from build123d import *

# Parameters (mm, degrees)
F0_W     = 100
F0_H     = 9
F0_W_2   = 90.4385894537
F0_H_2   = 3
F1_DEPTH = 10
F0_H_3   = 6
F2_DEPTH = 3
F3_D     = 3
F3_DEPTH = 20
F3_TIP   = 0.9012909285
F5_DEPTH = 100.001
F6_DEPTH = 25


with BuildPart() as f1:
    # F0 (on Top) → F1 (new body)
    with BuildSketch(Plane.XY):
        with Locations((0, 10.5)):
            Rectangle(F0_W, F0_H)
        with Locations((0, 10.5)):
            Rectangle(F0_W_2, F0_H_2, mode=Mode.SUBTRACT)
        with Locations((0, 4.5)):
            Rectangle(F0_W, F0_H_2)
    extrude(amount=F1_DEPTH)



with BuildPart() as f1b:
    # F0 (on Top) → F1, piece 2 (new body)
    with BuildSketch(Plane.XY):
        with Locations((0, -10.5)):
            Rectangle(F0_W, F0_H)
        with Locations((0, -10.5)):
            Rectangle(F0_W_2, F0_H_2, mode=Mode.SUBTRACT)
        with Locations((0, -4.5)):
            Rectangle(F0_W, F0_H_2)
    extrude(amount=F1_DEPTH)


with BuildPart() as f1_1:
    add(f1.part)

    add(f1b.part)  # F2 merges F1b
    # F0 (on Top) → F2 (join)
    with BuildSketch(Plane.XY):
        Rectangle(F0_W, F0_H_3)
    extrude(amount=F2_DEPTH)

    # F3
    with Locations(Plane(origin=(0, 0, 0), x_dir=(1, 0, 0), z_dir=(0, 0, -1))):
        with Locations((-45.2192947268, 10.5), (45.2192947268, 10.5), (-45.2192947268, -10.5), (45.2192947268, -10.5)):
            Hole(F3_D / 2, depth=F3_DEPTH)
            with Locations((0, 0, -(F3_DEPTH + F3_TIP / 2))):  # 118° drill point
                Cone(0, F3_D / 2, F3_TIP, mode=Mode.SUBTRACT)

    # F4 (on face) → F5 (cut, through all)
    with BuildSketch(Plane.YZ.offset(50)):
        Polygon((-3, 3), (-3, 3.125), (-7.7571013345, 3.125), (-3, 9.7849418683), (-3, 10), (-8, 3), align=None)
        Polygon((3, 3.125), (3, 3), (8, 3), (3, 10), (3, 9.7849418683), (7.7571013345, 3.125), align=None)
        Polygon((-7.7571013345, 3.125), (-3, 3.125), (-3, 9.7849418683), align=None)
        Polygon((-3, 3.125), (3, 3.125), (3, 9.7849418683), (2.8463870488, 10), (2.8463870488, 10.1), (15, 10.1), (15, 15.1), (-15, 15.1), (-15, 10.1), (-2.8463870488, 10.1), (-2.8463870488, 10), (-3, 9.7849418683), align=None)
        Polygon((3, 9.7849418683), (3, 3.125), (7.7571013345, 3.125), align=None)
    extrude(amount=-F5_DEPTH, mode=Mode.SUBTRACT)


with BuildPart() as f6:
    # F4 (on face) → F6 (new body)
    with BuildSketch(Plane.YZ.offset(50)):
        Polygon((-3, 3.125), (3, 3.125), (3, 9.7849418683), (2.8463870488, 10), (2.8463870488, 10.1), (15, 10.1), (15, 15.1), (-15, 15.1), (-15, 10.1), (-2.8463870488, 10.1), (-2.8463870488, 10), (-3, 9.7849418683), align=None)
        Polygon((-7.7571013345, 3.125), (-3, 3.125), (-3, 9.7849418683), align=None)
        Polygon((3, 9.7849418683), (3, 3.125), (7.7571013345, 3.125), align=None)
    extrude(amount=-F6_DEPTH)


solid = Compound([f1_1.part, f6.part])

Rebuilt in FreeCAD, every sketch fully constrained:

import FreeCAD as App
import Part
import Sketcher
Q = App.Units.Quantity

doc = App.newDocument("Part")
body = doc.addObject("PartDesign::Body", "Body")

# Sketch on XY plane
sketch1 = body.newObject("Sketcher::SketchObject", "Sketch")
sketch1.AttachmentSupport = (doc.getObject("XY_Plane"), [""])
sketch1.MapMode = "FlatFace"
sketch1.addGeometry([
    Part.LineSegment(App.Vector(-50, 15, 0), App.Vector(-50, 3, 0)),  # 0
    Part.LineSegment(App.Vector(-50, 3, 0), App.Vector(50, 3, 0)),  # 1
    Part.LineSegment(App.Vector(50, 3, 0), App.Vector(50, 15, 0)),  # 2
    Part.LineSegment(App.Vector(50, 15, 0), App.Vector(-50, 15, 0)),  # 3
    Part.LineSegment(App.Vector(45.2, 9, 0), App.Vector(-45.2, 9, 0)),  # 4
    Part.LineSegment(App.Vector(-45.2, 9, 0), App.Vector(-45.2, 12, 0)),  # 5
    Part.LineSegment(App.Vector(-45.2, 12, 0), App.Vector(45.2, 12, 0)),  # 6
    Part.LineSegment(App.Vector(45.2, 12, 0), App.Vector(45.2, 9, 0)),  # 7
], False)
sketch1.addConstraint([
    Sketcher.Constraint("Coincident", 0, 2, 1, 1),
    Sketcher.Constraint("Coincident", 1, 2, 2, 1),
    Sketcher.Constraint("Coincident", 2, 2, 3, 1),
    Sketcher.Constraint("Coincident", 3, 2, 0, 1),
    Sketcher.Constraint("Coincident", 4, 2, 5, 1),
    Sketcher.Constraint("Coincident", 5, 2, 6, 1),
    Sketcher.Constraint("Coincident", 6, 2, 7, 1),
    Sketcher.Constraint("Coincident", 7, 2, 4, 1),
    Sketcher.Constraint("Vertical", 0),
    Sketcher.Constraint("Horizontal", 1),
    Sketcher.Constraint("Vertical", 2),
    Sketcher.Constraint("Horizontal", 3),
    Sketcher.Constraint("Horizontal", 4),
    Sketcher.Constraint("Vertical", 5),
    Sketcher.Constraint("Horizontal", 6),
    Sketcher.Constraint("Vertical", 7),
    Sketcher.Constraint("DistanceX", 1, 1, 1, 2, Q("100 mm")),
    Sketcher.Constraint("DistanceY", 0, 2, 0, 1, Q("12 mm")),
    Sketcher.Constraint("DistanceY", 5, 1, 5, 2, Q("3 mm")),
    Sketcher.Constraint("DistanceX", 0, 2, -1, 1, Q("50 mm")),
    Sketcher.Constraint("DistanceY", -1, 1, 0, 2, Q("3 mm")),
    Sketcher.Constraint("DistanceY", -1, 1, 4, 2, Q("9 mm")),
    Sketcher.Constraint("DistanceX", 4, 2, 4, 1, Q("90.438589 mm")),
    Sketcher.Constraint("DistanceX", 4, 2, -1, 1, Q("45.219295 mm")),
])
pad1 = body.newObject("PartDesign::Pad", "Pad")
pad1.Profile = sketch1
pad1.Length = 10
body2 = doc.addObject("PartDesign::Body", "Body001")

# Sketch on XY plane
sketch2 = body2.newObject("Sketcher::SketchObject", "Sketch001")
sketch2.AttachmentSupport = (doc.getObject("XY_Plane001"), [""])
sketch2.MapMode = "FlatFace"
sketch2.addGeometry([
    Part.LineSegment(App.Vector(-50, -15, 0), App.Vector(50, -15, 0)),  # 0
    Part.LineSegment(App.Vector(50, -15, 0), App.Vector(50, -3, 0)),  # 1
    Part.LineSegment(App.Vector(50, -3, 0), App.Vector(-50, -3, 0)),  # 2
    Part.LineSegment(App.Vector(-50, -3, 0), App.Vector(-50, -15, 0)),  # 3
    Part.LineSegment(App.Vector(45.2, -12, 0), App.Vector(-45.2, -12, 0)),  # 4
    Part.LineSegment(App.Vector(-45.2, -12, 0), App.Vector(-45.2, -9, 0)),  # 5
    Part.LineSegment(App.Vector(-45.2, -9, 0), App.Vector(45.2, -9, 0)),  # 6
    Part.LineSegment(App.Vector(45.2, -9, 0), App.Vector(45.2, -12, 0)),  # 7
], False)
sketch2.addConstraint([
    Sketcher.Constraint("Coincident", 0, 2, 1, 1),
    Sketcher.Constraint("Coincident", 1, 2, 2, 1),
    Sketcher.Constraint("Coincident", 2, 2, 3, 1),
    Sketcher.Constraint("Coincident", 3, 2, 0, 1),
    Sketcher.Constraint("Coincident", 4, 2, 5, 1),
    Sketcher.Constraint("Coincident", 5, 2, 6, 1),
    Sketcher.Constraint("Coincident", 6, 2, 7, 1),
    Sketcher.Constraint("Coincident", 7, 2, 4, 1),
    Sketcher.Constraint("Horizontal", 0),
    Sketcher.Constraint("Vertical", 1),
    Sketcher.Constraint("Horizontal", 2),
    Sketcher.Constraint("Vertical", 3),
    Sketcher.Constraint("Horizontal", 4),
    Sketcher.Constraint("Vertical", 5),
    Sketcher.Constraint("Horizontal", 6),
    Sketcher.Constraint("Vertical", 7),
    Sketcher.Constraint("DistanceX", 0, 1, 0, 2, Q("100 mm")),
    Sketcher.Constraint("DistanceY", 1, 1, 1, 2, Q("12 mm")),
    Sketcher.Constraint("DistanceY", 5, 1, 5, 2, Q("3 mm")),
    Sketcher.Constraint("DistanceX", -1, 1, 0, 2, Q("50 mm")),
    Sketcher.Constraint("DistanceY", 0, 2, -1, 1, Q("15 mm")),
    Sketcher.Constraint("DistanceY", 4, 2, -1, 1, Q("12 mm")),
    Sketcher.Constraint("DistanceX", 4, 2, 4, 1, Q("90.438589 mm")),
    Sketcher.Constraint("DistanceX", 4, 2, -1, 1, Q("45.219295 mm")),
])
pad2 = body2.newObject("PartDesign::Pad", "Pad001")
pad2.Profile = sketch2
pad2.Length = 10
body.AllowCompound = True
doc.recompute()

boolean = body.newObject("PartDesign::Boolean", "Boolean")
boolean.Type = "Fuse"
boolean.addObjects([body2])

# Sketch on XY plane
sketch3 = body.newObject("Sketcher::SketchObject", "Sketch002")
sketch3.AttachmentSupport = (doc.getObject("XY_Plane"), [""])
sketch3.MapMode = "FlatFace"
sketch3.addGeometry([
    Part.LineSegment(App.Vector(-50, 3, 0), App.Vector(-50, -3, 0)),
    Part.LineSegment(App.Vector(-50, -3, 0), App.Vector(50, -3, 0)),
    Part.LineSegment(App.Vector(50, -3, 0), App.Vector(50, 3, 0)),
    Part.LineSegment(App.Vector(50, 3, 0), App.Vector(-50, 3, 0)),
], False)
sketch3.addConstraint([
    Sketcher.Constraint("Coincident", 0, 2, 1, 1),
    Sketcher.Constraint("Coincident", 1, 2, 2, 1),
    Sketcher.Constraint("Coincident", 2, 2, 3, 1),
    Sketcher.Constraint("Coincident", 3, 2, 0, 1),
    Sketcher.Constraint("Vertical", 0),
    Sketcher.Constraint("Horizontal", 1),
    Sketcher.Constraint("Vertical", 2),
    Sketcher.Constraint("Horizontal", 3),
    Sketcher.Constraint("Symmetric", 0, 2, 2, 2, -1, 1),
    Sketcher.Constraint("DistanceX", 1, 1, 1, 2, Q("100 mm")),
    Sketcher.Constraint("DistanceY", 0, 2, 0, 1, Q("6 mm")),
])
pad3 = body.newObject("PartDesign::Pad", "Pad002")
pad3.Profile = sketch3
pad3.Length = 3

# Sketch on XY plane
sketch4 = body.newObject("Sketcher::SketchObject", "Sketch003")
sketch4.AttachmentSupport = (doc.getObject("XY_Plane"), [""])
sketch4.MapMode = "FlatFace"
sketch4.addGeometry([
    Part.Circle(App.Vector(-45.2, -10.5, 0), App.Vector(0, 0, 1), 1.5),
    Part.Circle(App.Vector(45.2, -10.5, 0), App.Vector(0, 0, 1), 1.5),
    Part.Circle(App.Vector(-45.2, 10.5, 0), App.Vector(0, 0, 1), 1.5),
    Part.Circle(App.Vector(45.2, 10.5, 0), App.Vector(0, 0, 1), 1.5),
], False)
sketch4.addConstraint([
    Sketcher.Constraint("Equal", 0, 1),
    Sketcher.Constraint("Equal", 1, 2),
    Sketcher.Constraint("Equal", 2, 3),
    Sketcher.Constraint("Symmetric", 1, 3, 2, 3, -1, 1),
    Sketcher.Constraint("Symmetric", 0, 3, 3, 3, -1, 1),
    Sketcher.Constraint("Symmetric", 0, 3, 1, 3, -2),
    Sketcher.Constraint("Diameter", 0, Q("3 mm")),
    Sketcher.Constraint("DistanceY", 0, 3, 2, 3, Q("21 mm")),
    Sketcher.Constraint("DistanceX", 0, 3, 1, 3, Q("90.438589 mm")),
])
doc.recompute()
hole = body.newObject("PartDesign::Hole", "Hole")
hole.Profile = sketch4
hole.ThreadType = "None"
hole.Diameter = 3
hole.DepthType = "Dimension"
hole.Depth = 20
hole.DrillPoint = "Angled"
hole.DrillPointAngle = 118
hole.Reversed = True

# Sketch on YZ plane
sketch5 = body.newObject("Sketcher::SketchObject", "Sketch004")
sketch5.AttachmentSupport = (doc.getObject("YZ_Plane"), [""])
sketch5.MapMode = "FlatFace"
sketch5.AttachmentOffset = App.Placement(App.Vector(0, 0, 50), App.Rotation())
sketch5.addGeometry([
    Part.LineSegment(App.Vector(-3, 3, 0), App.Vector(-3, 3.12, 0)),  # 0
    Part.LineSegment(App.Vector(-3, 3.12, 0), App.Vector(3, 3.12, 0)),  # 1
    Part.LineSegment(App.Vector(3, 3.12, 0), App.Vector(3, 3, 0)),  # 2
    Part.LineSegment(App.Vector(3, 3, 0), App.Vector(8, 3, 0)),  # 3
    Part.LineSegment(App.Vector(8, 3, 0), App.Vector(3, 10, 0)),  # 4
    Part.LineSegment(App.Vector(3, 10, 0), App.Vector(3, 9.78, 0)),  # 5
    Part.LineSegment(App.Vector(3, 9.78, 0), App.Vector(2.85, 10, 0)),  # 6
    Part.LineSegment(App.Vector(2.85, 10, 0), App.Vector(2.85, 10.1, 0)),  # 7
    Part.LineSegment(App.Vector(2.85, 10.1, 0), App.Vector(15, 10.1, 0)),  # 8
    Part.LineSegment(App.Vector(15, 10.1, 0), App.Vector(15, 15.1, 0)),  # 9
    Part.LineSegment(App.Vector(15, 15.1, 0), App.Vector(-15, 15.1, 0)),  # 10
    Part.LineSegment(App.Vector(-15, 15.1, 0), App.Vector(-15, 10.1, 0)),  # 11
    Part.LineSegment(App.Vector(-15, 10.1, 0), App.Vector(-2.85, 10.1, 0)),  # 12
    Part.LineSegment(App.Vector(-2.85, 10.1, 0), App.Vector(-2.85, 10, 0)),  # 13
    Part.LineSegment(App.Vector(-2.85, 10, 0), App.Vector(-3, 9.78, 0)),  # 14
    Part.LineSegment(App.Vector(-3, 9.78, 0), App.Vector(-3, 10, 0)),  # 15
    Part.LineSegment(App.Vector(-3, 10, 0), App.Vector(-8, 3, 0)),  # 16
    Part.LineSegment(App.Vector(-8, 3, 0), App.Vector(-3, 3, 0)),  # 17
], False)
sketch5.addConstraint([
    Sketcher.Constraint("Coincident", 0, 2, 1, 1),
    Sketcher.Constraint("Coincident", 1, 2, 2, 1),
    Sketcher.Constraint("Coincident", 2, 2, 3, 1),
    Sketcher.Constraint("Coincident", 3, 2, 4, 1),
    Sketcher.Constraint("Coincident", 4, 2, 5, 1),
    Sketcher.Constraint("Coincident", 5, 2, 6, 1),
    Sketcher.Constraint("Coincident", 6, 2, 7, 1),
    Sketcher.Constraint("Coincident", 7, 2, 8, 1),
    Sketcher.Constraint("Coincident", 8, 2, 9, 1),
    Sketcher.Constraint("Coincident", 9, 2, 10, 1),
    Sketcher.Constraint("Coincident", 10, 2, 11, 1),
    Sketcher.Constraint("Coincident", 11, 2, 12, 1),
    Sketcher.Constraint("Coincident", 12, 2, 13, 1),
    Sketcher.Constraint("Coincident", 13, 2, 14, 1),
    Sketcher.Constraint("Coincident", 14, 2, 15, 1),
    Sketcher.Constraint("Coincident", 15, 2, 16, 1),
    Sketcher.Constraint("Coincident", 16, 2, 17, 1),
    Sketcher.Constraint("Coincident", 17, 2, 0, 1),
    Sketcher.Constraint("Vertical", 0),
    Sketcher.Constraint("Horizontal", 1),
    Sketcher.Constraint("Vertical", 2),
    Sketcher.Constraint("Horizontal", 3),
    Sketcher.Constraint("Vertical", 5),
    Sketcher.Constraint("Vertical", 7),
    Sketcher.Constraint("Horizontal", 8),
    Sketcher.Constraint("Vertical", 9),
    Sketcher.Constraint("Horizontal", 10),
    Sketcher.Constraint("Vertical", 11),
    Sketcher.Constraint("Horizontal", 12),
    Sketcher.Constraint("Vertical", 13),
    Sketcher.Constraint("Vertical", 15),
    Sketcher.Constraint("Horizontal", 17),
    Sketcher.Constraint("Symmetric", 8, 2, 11, 2, -2),
    Sketcher.Constraint("Symmetric", 6, 2, 13, 2, -2),
    Sketcher.Constraint("Symmetric", 5, 2, 14, 2, -2),
    Sketcher.Constraint("Symmetric", 3, 2, 16, 2, -2),
    Sketcher.Constraint("Parallel", 4, 6),
    Sketcher.Constraint("Parallel", 14, 16),
    Sketcher.Constraint("Horizontal", 4, 2, 6, 2),
    Sketcher.Constraint("Vertical", 2, 2, 4, 2),
    Sketcher.Constraint("Vertical", 0, 2, 14, 2),
    Sketcher.Constraint("Equal", 17, 9),
    Sketcher.Constraint("DistanceX", 1, 1, 1, 2, Q("6 mm")),
    Sketcher.Constraint("DistanceX", 3, 1, 3, 2, Q("5 mm")),
    Sketcher.Constraint("DistanceX", 10, 2, 10, 1, Q("30 mm")),
    Sketcher.Constraint("DistanceY", 7, 1, 7, 2, Q("0.1 mm")),
    Sketcher.Constraint("DistanceY", -1, 1, 2, 2, Q("3 mm")),
    Sketcher.Constraint("DistanceY", -1, 1, 4, 2, Q("10 mm")),
    Sketcher.Constraint("DistanceY", 0, 1, 0, 2, Q("0.125 mm")),
    Sketcher.Constraint("DistanceY", 5, 2, 5, 1, Q("0.215058 mm")),
])
pocket1 = body.newObject("PartDesign::Pocket", "Pocket")
pocket1.Profile = sketch5
pocket1.Type = "ThroughAll"
body3 = doc.addObject("PartDesign::Body", "Body002")

# Sketch on YZ plane
sketch6 = body3.newObject("Sketcher::SketchObject", "Sketch005")
sketch6.AttachmentSupport = (doc.getObject("YZ_Plane002"), [""])
sketch6.MapMode = "FlatFace"
sketch6.AttachmentOffset = App.Placement(App.Vector(0, 0, 50), App.Rotation())
sketch6.addGeometry([
    Part.LineSegment(App.Vector(3, 9.78, 0), App.Vector(2.85, 10, 0)),  # 0
    Part.LineSegment(App.Vector(2.85, 10, 0), App.Vector(2.85, 10.1, 0)),  # 1
    Part.LineSegment(App.Vector(2.85, 10.1, 0), App.Vector(15, 10.1, 0)),  # 2
    Part.LineSegment(App.Vector(15, 10.1, 0), App.Vector(15, 15.1, 0)),  # 3
    Part.LineSegment(App.Vector(15, 15.1, 0), App.Vector(-15, 15.1, 0)),  # 4
    Part.LineSegment(App.Vector(-15, 15.1, 0), App.Vector(-15, 10.1, 0)),  # 5
    Part.LineSegment(App.Vector(-15, 10.1, 0), App.Vector(-2.85, 10.1, 0)),  # 6
    Part.LineSegment(App.Vector(-2.85, 10.1, 0), App.Vector(-2.85, 10, 0)),  # 7
    Part.LineSegment(App.Vector(-2.85, 10, 0), App.Vector(-3, 9.78, 0)),  # 8
    Part.LineSegment(App.Vector(-3, 9.78, 0), App.Vector(-7.76, 3.12, 0)),  # 9
    Part.LineSegment(App.Vector(-7.76, 3.12, 0), App.Vector(7.76, 3.12, 0)),  # 10
    Part.LineSegment(App.Vector(7.76, 3.12, 0), App.Vector(3, 9.78, 0)),  # 11
], False)
sketch6.addConstraint([
    Sketcher.Constraint("Coincident", 0, 2, 1, 1),
    Sketcher.Constraint("Coincident", 1, 2, 2, 1),
    Sketcher.Constraint("Coincident", 2, 2, 3, 1),
    Sketcher.Constraint("Coincident", 3, 2, 4, 1),
    Sketcher.Constraint("Coincident", 4, 2, 5, 1),
    Sketcher.Constraint("Coincident", 5, 2, 6, 1),
    Sketcher.Constraint("Coincident", 6, 2, 7, 1),
    Sketcher.Constraint("Coincident", 7, 2, 8, 1),
    Sketcher.Constraint("Coincident", 8, 2, 9, 1),
    Sketcher.Constraint("Coincident", 9, 2, 10, 1),
    Sketcher.Constraint("Coincident", 10, 2, 11, 1),
    Sketcher.Constraint("Coincident", 11, 2, 0, 1),
    Sketcher.Constraint("Vertical", 1),
    Sketcher.Constraint("Horizontal", 2),
    Sketcher.Constraint("Vertical", 3),
    Sketcher.Constraint("Horizontal", 4),
    Sketcher.Constraint("Vertical", 5),
    Sketcher.Constraint("Horizontal", 6),
    Sketcher.Constraint("Vertical", 7),
    Sketcher.Constraint("Horizontal", 10),
    Sketcher.Constraint("Symmetric", 2, 2, 5, 2, -2),
    Sketcher.Constraint("Symmetric", 0, 2, 7, 2, -2),
    Sketcher.Constraint("Symmetric", 8, 2, 11, 2, -2),
    Sketcher.Constraint("Parallel", 8, 9),
    Sketcher.Constraint("Parallel", 0, 11),
    Sketcher.Constraint("DistanceX", 4, 2, 4, 1, Q("30 mm")),
    Sketcher.Constraint("DistanceY", 3, 1, 3, 2, Q("5 mm")),
    Sketcher.Constraint("DistanceY", 1, 1, 1, 2, Q("0.1 mm")),
    Sketcher.Constraint("DistanceY", -1, 1, 0, 2, Q("10 mm")),
    Sketcher.Constraint("DistanceX", 8, 2, -1, 1, Q("3 mm")),
    Sketcher.Constraint("DistanceY", -1, 1, 9, 2, Q("3.125 mm")),
    Sketcher.Constraint("DistanceX", 9, 2, -1, 1, Q("7.757101 mm")),
    Sketcher.Constraint("DistanceX", 2, 1, 2, 2, Q("12.153613 mm")),
])
pad4 = body3.newObject("PartDesign::Pad", "Pad003")
pad4.Profile = sketch6
pad4.Length = 25
pad4.Reversed = True

doc.recompute()
